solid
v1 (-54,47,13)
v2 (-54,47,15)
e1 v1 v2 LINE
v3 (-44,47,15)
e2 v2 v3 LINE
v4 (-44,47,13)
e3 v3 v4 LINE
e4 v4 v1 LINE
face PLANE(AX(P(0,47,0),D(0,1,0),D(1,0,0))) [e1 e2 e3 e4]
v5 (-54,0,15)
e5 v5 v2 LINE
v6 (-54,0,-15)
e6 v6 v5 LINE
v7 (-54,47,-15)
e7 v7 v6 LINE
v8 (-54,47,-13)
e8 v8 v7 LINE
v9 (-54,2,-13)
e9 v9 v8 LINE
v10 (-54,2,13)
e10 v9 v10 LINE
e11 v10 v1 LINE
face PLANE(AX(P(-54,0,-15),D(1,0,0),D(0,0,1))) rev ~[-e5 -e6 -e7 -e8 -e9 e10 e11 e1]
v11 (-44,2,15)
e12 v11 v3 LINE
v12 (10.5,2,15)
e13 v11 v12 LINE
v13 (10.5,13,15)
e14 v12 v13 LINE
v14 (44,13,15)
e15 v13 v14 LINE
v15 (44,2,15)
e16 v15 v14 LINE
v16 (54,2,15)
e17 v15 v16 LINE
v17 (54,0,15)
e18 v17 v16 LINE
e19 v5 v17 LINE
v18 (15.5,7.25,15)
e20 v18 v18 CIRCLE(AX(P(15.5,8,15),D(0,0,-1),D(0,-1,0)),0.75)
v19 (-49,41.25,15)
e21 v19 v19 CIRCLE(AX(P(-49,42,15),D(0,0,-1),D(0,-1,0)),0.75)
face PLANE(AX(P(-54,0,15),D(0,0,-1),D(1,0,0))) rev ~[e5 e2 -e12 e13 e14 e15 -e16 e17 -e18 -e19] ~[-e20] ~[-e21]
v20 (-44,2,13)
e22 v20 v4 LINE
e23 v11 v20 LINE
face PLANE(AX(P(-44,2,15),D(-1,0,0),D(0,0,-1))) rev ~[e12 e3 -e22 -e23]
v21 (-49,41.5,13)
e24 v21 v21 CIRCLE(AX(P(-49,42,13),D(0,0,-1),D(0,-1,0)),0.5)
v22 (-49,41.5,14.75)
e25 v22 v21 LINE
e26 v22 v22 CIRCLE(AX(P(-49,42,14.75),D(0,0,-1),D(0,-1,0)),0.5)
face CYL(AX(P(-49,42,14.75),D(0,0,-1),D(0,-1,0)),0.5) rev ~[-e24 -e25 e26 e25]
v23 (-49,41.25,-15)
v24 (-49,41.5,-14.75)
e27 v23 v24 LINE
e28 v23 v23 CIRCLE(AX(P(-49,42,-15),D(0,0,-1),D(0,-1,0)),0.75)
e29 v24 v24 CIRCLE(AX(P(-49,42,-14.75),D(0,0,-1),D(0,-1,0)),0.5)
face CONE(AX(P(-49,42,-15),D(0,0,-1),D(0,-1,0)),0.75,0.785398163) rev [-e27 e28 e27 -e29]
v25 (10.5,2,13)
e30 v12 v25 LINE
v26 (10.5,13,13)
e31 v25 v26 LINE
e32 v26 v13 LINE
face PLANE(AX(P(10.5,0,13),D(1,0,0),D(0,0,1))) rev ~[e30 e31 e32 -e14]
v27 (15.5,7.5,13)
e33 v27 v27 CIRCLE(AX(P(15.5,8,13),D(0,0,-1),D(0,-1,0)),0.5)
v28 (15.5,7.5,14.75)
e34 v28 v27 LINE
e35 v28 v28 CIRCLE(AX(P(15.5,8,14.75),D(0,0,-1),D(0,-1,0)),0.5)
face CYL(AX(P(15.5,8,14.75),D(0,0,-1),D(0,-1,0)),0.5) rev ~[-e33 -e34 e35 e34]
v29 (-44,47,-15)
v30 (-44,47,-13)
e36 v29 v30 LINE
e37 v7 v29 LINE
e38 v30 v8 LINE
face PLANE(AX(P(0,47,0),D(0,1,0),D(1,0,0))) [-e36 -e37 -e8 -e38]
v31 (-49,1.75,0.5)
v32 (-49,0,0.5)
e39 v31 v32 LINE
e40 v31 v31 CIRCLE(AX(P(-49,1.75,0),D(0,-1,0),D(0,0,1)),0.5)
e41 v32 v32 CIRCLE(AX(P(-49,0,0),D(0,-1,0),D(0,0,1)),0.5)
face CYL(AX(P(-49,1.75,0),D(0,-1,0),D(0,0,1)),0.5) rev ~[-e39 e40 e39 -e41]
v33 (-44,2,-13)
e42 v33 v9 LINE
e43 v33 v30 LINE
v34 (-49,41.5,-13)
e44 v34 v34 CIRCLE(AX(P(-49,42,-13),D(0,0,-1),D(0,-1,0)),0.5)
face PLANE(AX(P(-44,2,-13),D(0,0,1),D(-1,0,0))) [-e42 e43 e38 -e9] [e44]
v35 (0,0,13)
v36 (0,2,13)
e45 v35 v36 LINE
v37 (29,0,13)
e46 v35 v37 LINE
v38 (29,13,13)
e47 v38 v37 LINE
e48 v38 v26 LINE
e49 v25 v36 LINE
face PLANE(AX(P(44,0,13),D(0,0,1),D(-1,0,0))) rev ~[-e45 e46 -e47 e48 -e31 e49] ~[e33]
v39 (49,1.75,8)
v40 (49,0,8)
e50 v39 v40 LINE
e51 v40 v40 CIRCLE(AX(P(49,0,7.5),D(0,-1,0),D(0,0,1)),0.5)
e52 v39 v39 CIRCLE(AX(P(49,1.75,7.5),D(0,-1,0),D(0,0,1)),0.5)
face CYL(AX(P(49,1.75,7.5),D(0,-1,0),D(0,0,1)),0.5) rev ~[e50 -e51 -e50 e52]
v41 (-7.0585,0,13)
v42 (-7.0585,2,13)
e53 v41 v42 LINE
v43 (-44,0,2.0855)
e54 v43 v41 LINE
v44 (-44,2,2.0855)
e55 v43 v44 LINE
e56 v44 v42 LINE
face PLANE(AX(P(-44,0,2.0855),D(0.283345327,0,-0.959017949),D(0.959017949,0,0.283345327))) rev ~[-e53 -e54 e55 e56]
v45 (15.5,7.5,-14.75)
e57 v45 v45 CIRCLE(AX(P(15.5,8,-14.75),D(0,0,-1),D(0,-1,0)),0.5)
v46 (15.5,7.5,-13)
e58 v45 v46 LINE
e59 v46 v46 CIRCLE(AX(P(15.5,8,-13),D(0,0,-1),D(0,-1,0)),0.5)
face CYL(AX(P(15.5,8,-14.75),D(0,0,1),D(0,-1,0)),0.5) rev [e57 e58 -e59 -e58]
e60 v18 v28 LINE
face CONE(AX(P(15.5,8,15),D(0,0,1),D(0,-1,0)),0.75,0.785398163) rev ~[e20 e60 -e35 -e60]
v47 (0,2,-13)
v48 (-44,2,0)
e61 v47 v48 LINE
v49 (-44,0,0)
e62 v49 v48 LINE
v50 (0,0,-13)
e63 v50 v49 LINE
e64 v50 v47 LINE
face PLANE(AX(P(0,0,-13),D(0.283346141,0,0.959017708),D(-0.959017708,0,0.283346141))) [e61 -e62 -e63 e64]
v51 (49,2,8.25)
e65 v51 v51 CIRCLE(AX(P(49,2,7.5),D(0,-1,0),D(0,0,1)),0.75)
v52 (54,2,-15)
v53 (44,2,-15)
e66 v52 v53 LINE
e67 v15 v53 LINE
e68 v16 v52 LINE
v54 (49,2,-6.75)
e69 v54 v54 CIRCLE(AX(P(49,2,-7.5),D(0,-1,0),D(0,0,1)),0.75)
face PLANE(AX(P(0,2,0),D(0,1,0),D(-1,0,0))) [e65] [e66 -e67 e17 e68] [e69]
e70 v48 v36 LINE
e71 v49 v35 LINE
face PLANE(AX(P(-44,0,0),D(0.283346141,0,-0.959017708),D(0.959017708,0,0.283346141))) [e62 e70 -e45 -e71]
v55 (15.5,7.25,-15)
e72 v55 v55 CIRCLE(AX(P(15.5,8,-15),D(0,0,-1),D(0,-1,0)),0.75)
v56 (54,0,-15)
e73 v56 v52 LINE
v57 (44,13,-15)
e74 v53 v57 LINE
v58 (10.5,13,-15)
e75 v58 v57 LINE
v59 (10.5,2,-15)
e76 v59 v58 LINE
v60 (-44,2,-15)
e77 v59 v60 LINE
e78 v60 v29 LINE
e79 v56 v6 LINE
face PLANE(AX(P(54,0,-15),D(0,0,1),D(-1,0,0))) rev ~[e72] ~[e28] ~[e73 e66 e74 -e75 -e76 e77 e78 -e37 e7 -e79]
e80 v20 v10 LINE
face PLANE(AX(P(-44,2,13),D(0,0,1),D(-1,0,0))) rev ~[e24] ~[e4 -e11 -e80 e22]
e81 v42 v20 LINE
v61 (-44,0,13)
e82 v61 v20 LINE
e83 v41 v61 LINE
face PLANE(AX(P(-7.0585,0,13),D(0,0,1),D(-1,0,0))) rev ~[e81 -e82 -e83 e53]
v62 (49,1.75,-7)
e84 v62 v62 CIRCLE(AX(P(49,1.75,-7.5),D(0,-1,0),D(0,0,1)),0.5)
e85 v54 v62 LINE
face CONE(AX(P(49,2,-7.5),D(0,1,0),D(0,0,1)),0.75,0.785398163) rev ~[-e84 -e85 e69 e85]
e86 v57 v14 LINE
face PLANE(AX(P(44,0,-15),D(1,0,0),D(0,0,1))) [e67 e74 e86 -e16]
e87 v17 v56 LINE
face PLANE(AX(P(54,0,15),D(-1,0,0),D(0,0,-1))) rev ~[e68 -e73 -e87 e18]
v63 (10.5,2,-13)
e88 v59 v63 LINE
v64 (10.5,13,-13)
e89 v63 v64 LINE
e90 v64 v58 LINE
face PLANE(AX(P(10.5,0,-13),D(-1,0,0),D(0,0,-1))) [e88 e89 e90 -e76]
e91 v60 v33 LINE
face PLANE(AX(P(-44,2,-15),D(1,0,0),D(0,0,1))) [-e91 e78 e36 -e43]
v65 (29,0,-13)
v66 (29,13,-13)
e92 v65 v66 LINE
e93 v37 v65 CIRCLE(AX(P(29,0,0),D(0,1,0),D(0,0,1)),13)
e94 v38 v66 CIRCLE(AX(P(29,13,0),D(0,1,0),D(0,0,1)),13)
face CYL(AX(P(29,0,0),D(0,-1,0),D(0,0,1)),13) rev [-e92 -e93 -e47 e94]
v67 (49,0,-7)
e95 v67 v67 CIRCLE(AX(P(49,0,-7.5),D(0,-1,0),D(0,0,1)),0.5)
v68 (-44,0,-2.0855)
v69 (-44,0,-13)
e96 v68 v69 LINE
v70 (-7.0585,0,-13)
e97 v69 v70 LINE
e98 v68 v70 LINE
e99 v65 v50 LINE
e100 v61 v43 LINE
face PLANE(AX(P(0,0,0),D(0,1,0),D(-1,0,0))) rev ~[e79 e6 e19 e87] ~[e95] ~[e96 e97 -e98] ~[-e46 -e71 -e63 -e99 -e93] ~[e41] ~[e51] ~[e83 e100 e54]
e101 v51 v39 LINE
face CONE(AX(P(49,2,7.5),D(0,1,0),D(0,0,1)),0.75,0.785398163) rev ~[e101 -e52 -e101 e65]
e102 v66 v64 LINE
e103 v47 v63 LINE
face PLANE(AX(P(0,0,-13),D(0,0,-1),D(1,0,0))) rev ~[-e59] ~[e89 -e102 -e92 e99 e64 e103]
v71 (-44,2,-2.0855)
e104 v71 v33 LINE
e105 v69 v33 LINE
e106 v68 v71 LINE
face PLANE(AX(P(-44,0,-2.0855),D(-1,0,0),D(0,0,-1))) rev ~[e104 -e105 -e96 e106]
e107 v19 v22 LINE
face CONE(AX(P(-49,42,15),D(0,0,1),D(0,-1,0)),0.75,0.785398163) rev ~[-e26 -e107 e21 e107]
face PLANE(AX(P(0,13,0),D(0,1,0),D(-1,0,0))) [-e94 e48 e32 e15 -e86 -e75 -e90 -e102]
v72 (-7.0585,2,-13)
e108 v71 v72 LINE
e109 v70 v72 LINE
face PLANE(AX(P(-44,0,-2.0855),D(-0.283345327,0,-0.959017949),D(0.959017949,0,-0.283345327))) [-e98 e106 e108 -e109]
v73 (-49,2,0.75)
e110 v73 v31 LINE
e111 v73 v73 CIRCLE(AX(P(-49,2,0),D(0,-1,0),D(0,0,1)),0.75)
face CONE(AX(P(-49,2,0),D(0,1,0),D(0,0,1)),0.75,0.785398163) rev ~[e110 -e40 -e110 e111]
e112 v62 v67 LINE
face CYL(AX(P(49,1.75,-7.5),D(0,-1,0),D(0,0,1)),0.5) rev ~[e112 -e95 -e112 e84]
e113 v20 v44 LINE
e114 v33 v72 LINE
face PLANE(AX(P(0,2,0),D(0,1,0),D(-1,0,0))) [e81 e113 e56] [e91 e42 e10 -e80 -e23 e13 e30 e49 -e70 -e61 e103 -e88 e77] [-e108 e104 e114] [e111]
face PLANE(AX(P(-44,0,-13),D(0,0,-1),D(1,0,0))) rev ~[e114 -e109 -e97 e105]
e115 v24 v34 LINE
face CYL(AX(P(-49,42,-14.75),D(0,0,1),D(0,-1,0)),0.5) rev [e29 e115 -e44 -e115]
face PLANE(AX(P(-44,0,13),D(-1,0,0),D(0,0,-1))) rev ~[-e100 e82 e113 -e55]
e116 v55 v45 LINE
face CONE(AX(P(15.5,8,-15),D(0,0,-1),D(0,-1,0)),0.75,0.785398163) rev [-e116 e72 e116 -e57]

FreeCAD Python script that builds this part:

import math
import FreeCAD as App
import Part
import Sketcher

V = App.Vector


def add_polygon(sketch, points):
    """Adds a closed chain of lines whose ends are joined by coincident constraints."""
    first, n = sketch.GeometryCount, len(points)
    for a, b in zip(points, points[1:] + points[:1]):
        sketch.addGeometry(Part.LineSegment(App.Vector(*a, 0), App.Vector(*b, 0)), False)
    for i in range(n):
        sketch.addConstraint(Sketcher.Constraint("Coincident", first + i, 2, first + (i + 1) % n, 1))

doc = App.newDocument("Part")
params = doc.addObject("Spreadsheet::Sheet", "Params")
for row, (alias, value) in enumerate([
    ("sketch1_width", "108 mm"),
    ("sketch1_height", "26 mm"),
    ("pad1_length", "2 mm"),
    ("sketch2_height", "2 mm"),
    ("sketch2_radius", "13 mm"),
    ("sketch2_width", "18.5 mm"),
    ("sketch2_width2", "33.5 mm"),
    ("pad2_length", "13 mm"),
    ("sketch3_width", "10 mm"),
    ("sketch3_height", "2 mm"),
    ("pad3_length", "45 mm"),
    ("sketch4_diameter", "1 mm"),
    ("hole_diameter", "1 mm"),
    ("hole_depth", "2 mm"),
    ("hole_csink_diameter", "1.5 mm"),
    ("sketch5_diameter", "1 mm"),
    ("hole2_diameter", "1 mm"),
    ("hole2_csink_diameter", "1.5 mm"),
], start=1):
    params.set(f"A{row}", alias)
    params.set(f"B{row}", "=" + value)
    params.setAlias(f"B{row}", alias)

body = doc.addObject("PartDesign::Body", "Body")

# Sketch on XZ plane
sketch1 = body.newObject("Sketcher::SketchObject", "Sketch")
sketch1.AttachmentSupport = (doc.getObject("XZ_Plane"), [""])
sketch1.MapMode = "FlatFace"
add_polygon(sketch1, [(-54, -15), (-54, 15), (54, 15), (54, -15)])  # lines 0-3
add_polygon(sketch1, [(-44, -2.0855), (-44, -13), (-7.0585, -13)])  # lines 4-6
add_polygon(sketch1, [(0, -13), (44, -13), (44, 13), (0, 13), (-44, 0)])  # lines 7-11
add_polygon(sketch1, [(-7.0585, 13), (-44, 13), (-44, 2.0855)])  # lines 12-14
sketch1.addConstraint(Sketcher.Constraint("Vertical", 0))
sketch1.addConstraint(Sketcher.Constraint("Horizontal", 1))
sketch1.addConstraint(Sketcher.Constraint("Vertical", 2))
sketch1.addConstraint(Sketcher.Constraint("Horizontal", 3))
sketch1.addConstraint(Sketcher.Constraint("Vertical", 4))
sketch1.addConstraint(Sketcher.Constraint("Horizontal", 5))
sketch1.addConstraint(Sketcher.Constraint("Horizontal", 7))
sketch1.addConstraint(Sketcher.Constraint("Vertical", 8))
sketch1.addConstraint(Sketcher.Constraint("Horizontal", 9))
sketch1.addConstraint(Sketcher.Constraint("Horizontal", 12))
sketch1.addConstraint(Sketcher.Constraint("Vertical", 13))
sketch1.addConstraint(Sketcher.Constraint("Symmetric", 0, 2, 2, 2, -1, 1))
sketch1.addConstraint(Sketcher.Constraint("Symmetric", 4, 2, 8, 2, -1, 1))
sketch1.addConstraint(Sketcher.Constraint("Symmetric", 9, 2, 11, 2, -1, 1))
sketch1.addConstraint(Sketcher.Constraint("Symmetric", 7, 2, 12, 2, -1, 1))
sketch1.addConstraint(Sketcher.Constraint("PointOnObject", 9, 2, -2))
sketch1.addConstraint(Sketcher.Constraint("PointOnObject", 10, 2, -1))
sketch1.addConstraint(Sketcher.Constraint("Parallel", 6, 11))
sketch1.addConstraint(Sketcher.Constraint("Parallel", 10, 14))
sketch1.addConstraint(Sketcher.Constraint("Vertical", 6, 2, 10, 2))
sketch1.addConstraint(Sketcher.Constraint("Vertical", 5, 2, 14, 2))
sketch1.addConstraint(Sketcher.Constraint("DistanceX", 1, 1, 1, 2, 108.0))
sketch1.addConstraint(Sketcher.Constraint("DistanceY", 8, 1, 8, 2, 26.0))
sketch1.addConstraint(Sketcher.Constraint("DistanceX", 3, 2, 4, 2, 10.0))
sketch1.addConstraint(Sketcher.Constraint("DistanceY", 3, 2, 4, 2, 2.0))
sketch1.addConstraint(Sketcher.Constraint("DistanceX", 5, 1, 5, 2, 36.9415))
sketch1.setExpression("Constraints[36]", "Params.sketch1_width")
sketch1.setExpression("Constraints[37]", "Params.sketch1_height")
pad1 = body.newObject("PartDesign::Pad", "Pad")
pad1.Profile = sketch1
pad1.setExpression("Length", "Params.pad1_length")
pad1.Reversed = True

# Sketch on XZ plane
sketch2 = body.newObject("Sketcher::SketchObject", "Sketch001")
sketch2.AttachmentSupport = (doc.getObject("XZ_Plane"), [""])
sketch2.MapMode = "FlatFace"
sketch2.addGeometry(Part.LineSegment(V(10.5, -15, 0), V(10.5, -13, 0)), False)
sketch2.addGeometry(Part.LineSegment(V(10.5, -13, 0), V(29, -13, 0)), False)
sketch2.addGeometry(Part.ArcOfCircle(Part.Circle(V(29, 0, 0), V(0, 0, 1), 13), math.radians(-90), math.radians(90)), False)
sketch2.addGeometry(Part.LineSegment(V(29, 13, 0), V(10.5, 13, 0)), False)
sketch2.addGeometry(Part.LineSegment(V(10.5, 13, 0), V(10.5, 15, 0)), False)
sketch2.addGeometry(Part.LineSegment(V(10.5, 15, 0), V(44, 15, 0)), False)
sketch2.addGeometry(Part.LineSegment(V(44, 15, 0), V(44, -15, 0)), False)
sketch2.addGeometry(Part.LineSegment(V(44, -15, 0), V(10.5, -15, 0)), False)
sketch2.addConstraint(Sketcher.Constraint("Coincident", 0, 2, 1, 1))
sketch2.addConstraint(Sketcher.Constraint("Tangent", 1, 2, 2, 1))
sketch2.addConstraint(Sketcher.Constraint("Tangent", 2, 2, 3, 1))
sketch2.addConstraint(Sketcher.Constraint("Coincident", 3, 2, 4, 1))
sketch2.addConstraint(Sketcher.Constraint("Coincident", 4, 2, 5, 1))
sketch2.addConstraint(Sketcher.Constraint("Coincident", 5, 2, 6, 1))
sketch2.addConstraint(Sketcher.Constraint("Coincident", 6, 2, 7, 1))
sketch2.addConstraint(Sketcher.Constraint("Coincident", 7, 2, 0, 1))
sketch2.addConstraint(Sketcher.Constraint("Vertical", 0))
sketch2.addConstraint(Sketcher.Constraint("Horizontal", 1))
sketch2.addConstraint(Sketcher.Constraint("Horizontal", 3))
sketch2.addConstraint(Sketcher.Constraint("Vertical", 4))
sketch2.addConstraint(Sketcher.Constraint("Horizontal", 5))
sketch2.addConstraint(Sketcher.Constraint("Vertical", 6))
sketch2.addConstraint(Sketcher.Constraint("Horizontal", 7))
sketch2.addConstraint(Sketcher.Constraint("Symmetric", 0, 2, 3, 2, -1))
sketch2.addConstraint(Sketcher.Constraint("Equal", 0, 4))
sketch2.addConstraint(Sketcher.Constraint("DistanceY", 0, 1, 0, 2, 2.0))
sketch2.addConstraint(Sketcher.Constraint("Radius", 2, 13.0))
sketch2.addConstraint(Sketcher.Constraint("DistanceX", 1, 1, 1, 2, 18.5))
sketch2.addConstraint(Sketcher.Constraint("DistanceX", 5, 1, 5, 2, 33.5))
sketch2.addConstraint(Sketcher.Constraint("DistanceX", -1, 1, 2, 3, 29.0))
sketch2.setExpression("Constraints[17]", "Params.sketch2_height")
sketch2.setExpression("Constraints[18]", "Params.sketch2_radius")
sketch2.setExpression("Constraints[19]", "Params.sketch2_width")
sketch2.setExpression("Constraints[20]", "Params.sketch2_width2")
pad2 = body.newObject("PartDesign::Pad", "Pad001")
pad2.Profile = sketch2
pad2.setExpression("Length", "Params.pad2_length")
pad2.Reversed = True

# Sketch on XZ plane
sketch3 = body.newObject("Sketcher::SketchObject", "Sketch002")
sketch3.AttachmentSupport = (doc.getObject("XZ_Plane"), [""])
sketch3.MapMode = "FlatFace"
sketch3.AttachmentOffset = App.Placement(V(0, 0, -2), App.Rotation())
add_polygon(sketch3, [(-54, -13), (-44, -13), (-44, -15), (-54, -15)])  # lines 0-3
add_polygon(sketch3, [(-44, 15), (-44, 13), (-54, 13), (-54, 15)])  # lines 4-7
sketch3.addConstraint(Sketcher.Constraint("Horizontal", 0))
sketch3.addConstraint(Sketcher.Constraint("Vertical", 1))
sketch3.addConstraint(Sketcher.Constraint("Horizontal", 2))
sketch3.addConstraint(Sketcher.Constraint("Vertical", 3))
sketch3.addConstraint(Sketcher.Constraint("Vertical", 4))
sketch3.addConstraint(Sketcher.Constraint("Horizontal", 5))
sketch3.addConstraint(Sketcher.Constraint("Vertical", 6))
sketch3.addConstraint(Sketcher.Constraint("Horizontal", 7))
sketch3.addConstraint(Sketcher.Constraint("Symmetric", 0, 2, 4, 2, -1))
sketch3.addConstraint(Sketcher.Constraint("Symmetric", 2, 2, 6, 2, -1))
sketch3.addConstraint(Sketcher.Constraint("DistanceX", 0, 1, 0, 2, 10.0))
sketch3.addConstraint(Sketcher.Constraint("DistanceY", 1, 2, 1, 1, 2.0))
sketch3.addConstraint(Sketcher.Constraint("DistanceX", 0, 2, -1, 1, 44.0))
sketch3.addConstraint(Sketcher.Constraint("DistanceY", 0, 2, -1, 1, 13.0))
sketch3.setExpression("Constraints[18]", "Params.sketch3_width")
sketch3.setExpression("Constraints[19]", "Params.sketch3_height")
pad3 = body.newObject("PartDesign::Pad", "Pad002")
pad3.Profile = sketch3
pad3.setExpression("Length", "Params.pad3_length")
pad3.Reversed = True

# Sketch on XY plane
sketch4 = body.newObject("Sketcher::SketchObject", "Sketch003")
sketch4.AttachmentSupport = (doc.getObject("XY_Plane"), [""])
sketch4.MapMode = "FlatFace"
sketch4.AttachmentOffset = App.Placement(V(0, 0, 15), App.Rotation())
sketch4.addGeometry(Part.Circle(V(-49, 42, 0), V(0, 0, 1), 0.5), False)
sketch4.addGeometry(Part.Circle(V(15.5, 8, 0), V(0, 0, 1), 0.5), False)
sketch4.addConstraint(Sketcher.Constraint("Equal", 0, 1))
sketch4.addConstraint(Sketcher.Constraint("Diameter", 0, 1.0))
sketch4.addConstraint(Sketcher.Constraint("DistanceX", 0, 3, -1, 1, 49.0))
sketch4.addConstraint(Sketcher.Constraint("DistanceY", -1, 1, 0, 3, 42.0))
sketch4.addConstraint(Sketcher.Constraint("DistanceY", -1, 1, 1, 3, 8.0))
sketch4.addConstraint(Sketcher.Constraint("DistanceX", -1, 1, 1, 3, 15.5))
sketch4.setExpression("Constraints[1]", "Params.sketch4_diameter")
doc.recompute()
hole = body.newObject("PartDesign::Hole", "Hole")
hole.Profile = sketch4
hole.ThreadType = "None"
hole.setExpression("Diameter", "Params.hole_diameter")
hole.DepthType = "Dimension"
hole.setExpression("Depth", "Params.hole_depth")
hole.DrillPoint = "Flat"
hole.HoleCutType = "Countersink"
hole.setExpression("HoleCutDiameter", "Params.hole_csink_diameter")
hole.HoleCutCountersinkAngle = 90
doc.recompute()

mirrored = body.newObject("PartDesign::Mirrored", "Mirrored")
mirrored.Originals = [hole]
mirrored.MirrorPlane = (doc.getObject("XY_Plane"), [""])
body.Tip = mirrored

# Sketch on XZ plane
sketch5 = body.newObject("Sketcher::SketchObject", "Sketch004")
sketch5.AttachmentSupport = (doc.getObject("XZ_Plane"), [""])
sketch5.MapMode = "FlatFace"
sketch5.AttachmentOffset = App.Placement(V(0, 0, -2), App.Rotation())
sketch5.addGeometry(Part.Circle(V(-49, 0, 0), V(0, 0, 1), 0.5), False)
sketch5.addGeometry(Part.Circle(V(49, 7.5, 0), V(0, 0, 1), 0.5), False)
sketch5.addGeometry(Part.Circle(V(49, -7.5, 0), V(0, 0, 1), 0.5), False)
sketch5.addConstraint(Sketcher.Constraint("Equal", 0, 1))
sketch5.addConstraint(Sketcher.Constraint("Equal", 1, 2))
sketch5.addConstraint(Sketcher.Constraint("Symmetric", 1, 3, 2, 3, -1))
sketch5.addConstraint(Sketcher.Constraint("PointOnObject", 0, 3, -1))
sketch5.addConstraint(Sketcher.Constraint("Diameter", 0, 1.0))
sketch5.addConstraint(Sketcher.Constraint("DistanceX", 0, 3, -1, 1, 49.0))
sketch5.addConstraint(Sketcher.Constraint("DistanceX", -1, 1, 1, 3, 49.0))
sketch5.addConstraint(Sketcher.Constraint("DistanceY", 2, 3, 1, 3, 15.0))
sketch5.setExpression("Constraints[4]", "Params.sketch5_diameter")
doc.recompute()
hole2 = body.newObject("PartDesign::Hole", "Hole001")
hole2.Profile = sketch5
hole2.ThreadType = "None"
hole2.setExpression("Diameter", "Params.hole2_diameter")
hole2.DepthType = "ThroughAll"
hole2.HoleCutType = "Countersink"
hole2.setExpression("HoleCutDiameter", "Params.hole2_csink_diameter")
hole2.HoleCutCountersinkAngle = 90
hole2.Reversed = True

doc.recompute()
